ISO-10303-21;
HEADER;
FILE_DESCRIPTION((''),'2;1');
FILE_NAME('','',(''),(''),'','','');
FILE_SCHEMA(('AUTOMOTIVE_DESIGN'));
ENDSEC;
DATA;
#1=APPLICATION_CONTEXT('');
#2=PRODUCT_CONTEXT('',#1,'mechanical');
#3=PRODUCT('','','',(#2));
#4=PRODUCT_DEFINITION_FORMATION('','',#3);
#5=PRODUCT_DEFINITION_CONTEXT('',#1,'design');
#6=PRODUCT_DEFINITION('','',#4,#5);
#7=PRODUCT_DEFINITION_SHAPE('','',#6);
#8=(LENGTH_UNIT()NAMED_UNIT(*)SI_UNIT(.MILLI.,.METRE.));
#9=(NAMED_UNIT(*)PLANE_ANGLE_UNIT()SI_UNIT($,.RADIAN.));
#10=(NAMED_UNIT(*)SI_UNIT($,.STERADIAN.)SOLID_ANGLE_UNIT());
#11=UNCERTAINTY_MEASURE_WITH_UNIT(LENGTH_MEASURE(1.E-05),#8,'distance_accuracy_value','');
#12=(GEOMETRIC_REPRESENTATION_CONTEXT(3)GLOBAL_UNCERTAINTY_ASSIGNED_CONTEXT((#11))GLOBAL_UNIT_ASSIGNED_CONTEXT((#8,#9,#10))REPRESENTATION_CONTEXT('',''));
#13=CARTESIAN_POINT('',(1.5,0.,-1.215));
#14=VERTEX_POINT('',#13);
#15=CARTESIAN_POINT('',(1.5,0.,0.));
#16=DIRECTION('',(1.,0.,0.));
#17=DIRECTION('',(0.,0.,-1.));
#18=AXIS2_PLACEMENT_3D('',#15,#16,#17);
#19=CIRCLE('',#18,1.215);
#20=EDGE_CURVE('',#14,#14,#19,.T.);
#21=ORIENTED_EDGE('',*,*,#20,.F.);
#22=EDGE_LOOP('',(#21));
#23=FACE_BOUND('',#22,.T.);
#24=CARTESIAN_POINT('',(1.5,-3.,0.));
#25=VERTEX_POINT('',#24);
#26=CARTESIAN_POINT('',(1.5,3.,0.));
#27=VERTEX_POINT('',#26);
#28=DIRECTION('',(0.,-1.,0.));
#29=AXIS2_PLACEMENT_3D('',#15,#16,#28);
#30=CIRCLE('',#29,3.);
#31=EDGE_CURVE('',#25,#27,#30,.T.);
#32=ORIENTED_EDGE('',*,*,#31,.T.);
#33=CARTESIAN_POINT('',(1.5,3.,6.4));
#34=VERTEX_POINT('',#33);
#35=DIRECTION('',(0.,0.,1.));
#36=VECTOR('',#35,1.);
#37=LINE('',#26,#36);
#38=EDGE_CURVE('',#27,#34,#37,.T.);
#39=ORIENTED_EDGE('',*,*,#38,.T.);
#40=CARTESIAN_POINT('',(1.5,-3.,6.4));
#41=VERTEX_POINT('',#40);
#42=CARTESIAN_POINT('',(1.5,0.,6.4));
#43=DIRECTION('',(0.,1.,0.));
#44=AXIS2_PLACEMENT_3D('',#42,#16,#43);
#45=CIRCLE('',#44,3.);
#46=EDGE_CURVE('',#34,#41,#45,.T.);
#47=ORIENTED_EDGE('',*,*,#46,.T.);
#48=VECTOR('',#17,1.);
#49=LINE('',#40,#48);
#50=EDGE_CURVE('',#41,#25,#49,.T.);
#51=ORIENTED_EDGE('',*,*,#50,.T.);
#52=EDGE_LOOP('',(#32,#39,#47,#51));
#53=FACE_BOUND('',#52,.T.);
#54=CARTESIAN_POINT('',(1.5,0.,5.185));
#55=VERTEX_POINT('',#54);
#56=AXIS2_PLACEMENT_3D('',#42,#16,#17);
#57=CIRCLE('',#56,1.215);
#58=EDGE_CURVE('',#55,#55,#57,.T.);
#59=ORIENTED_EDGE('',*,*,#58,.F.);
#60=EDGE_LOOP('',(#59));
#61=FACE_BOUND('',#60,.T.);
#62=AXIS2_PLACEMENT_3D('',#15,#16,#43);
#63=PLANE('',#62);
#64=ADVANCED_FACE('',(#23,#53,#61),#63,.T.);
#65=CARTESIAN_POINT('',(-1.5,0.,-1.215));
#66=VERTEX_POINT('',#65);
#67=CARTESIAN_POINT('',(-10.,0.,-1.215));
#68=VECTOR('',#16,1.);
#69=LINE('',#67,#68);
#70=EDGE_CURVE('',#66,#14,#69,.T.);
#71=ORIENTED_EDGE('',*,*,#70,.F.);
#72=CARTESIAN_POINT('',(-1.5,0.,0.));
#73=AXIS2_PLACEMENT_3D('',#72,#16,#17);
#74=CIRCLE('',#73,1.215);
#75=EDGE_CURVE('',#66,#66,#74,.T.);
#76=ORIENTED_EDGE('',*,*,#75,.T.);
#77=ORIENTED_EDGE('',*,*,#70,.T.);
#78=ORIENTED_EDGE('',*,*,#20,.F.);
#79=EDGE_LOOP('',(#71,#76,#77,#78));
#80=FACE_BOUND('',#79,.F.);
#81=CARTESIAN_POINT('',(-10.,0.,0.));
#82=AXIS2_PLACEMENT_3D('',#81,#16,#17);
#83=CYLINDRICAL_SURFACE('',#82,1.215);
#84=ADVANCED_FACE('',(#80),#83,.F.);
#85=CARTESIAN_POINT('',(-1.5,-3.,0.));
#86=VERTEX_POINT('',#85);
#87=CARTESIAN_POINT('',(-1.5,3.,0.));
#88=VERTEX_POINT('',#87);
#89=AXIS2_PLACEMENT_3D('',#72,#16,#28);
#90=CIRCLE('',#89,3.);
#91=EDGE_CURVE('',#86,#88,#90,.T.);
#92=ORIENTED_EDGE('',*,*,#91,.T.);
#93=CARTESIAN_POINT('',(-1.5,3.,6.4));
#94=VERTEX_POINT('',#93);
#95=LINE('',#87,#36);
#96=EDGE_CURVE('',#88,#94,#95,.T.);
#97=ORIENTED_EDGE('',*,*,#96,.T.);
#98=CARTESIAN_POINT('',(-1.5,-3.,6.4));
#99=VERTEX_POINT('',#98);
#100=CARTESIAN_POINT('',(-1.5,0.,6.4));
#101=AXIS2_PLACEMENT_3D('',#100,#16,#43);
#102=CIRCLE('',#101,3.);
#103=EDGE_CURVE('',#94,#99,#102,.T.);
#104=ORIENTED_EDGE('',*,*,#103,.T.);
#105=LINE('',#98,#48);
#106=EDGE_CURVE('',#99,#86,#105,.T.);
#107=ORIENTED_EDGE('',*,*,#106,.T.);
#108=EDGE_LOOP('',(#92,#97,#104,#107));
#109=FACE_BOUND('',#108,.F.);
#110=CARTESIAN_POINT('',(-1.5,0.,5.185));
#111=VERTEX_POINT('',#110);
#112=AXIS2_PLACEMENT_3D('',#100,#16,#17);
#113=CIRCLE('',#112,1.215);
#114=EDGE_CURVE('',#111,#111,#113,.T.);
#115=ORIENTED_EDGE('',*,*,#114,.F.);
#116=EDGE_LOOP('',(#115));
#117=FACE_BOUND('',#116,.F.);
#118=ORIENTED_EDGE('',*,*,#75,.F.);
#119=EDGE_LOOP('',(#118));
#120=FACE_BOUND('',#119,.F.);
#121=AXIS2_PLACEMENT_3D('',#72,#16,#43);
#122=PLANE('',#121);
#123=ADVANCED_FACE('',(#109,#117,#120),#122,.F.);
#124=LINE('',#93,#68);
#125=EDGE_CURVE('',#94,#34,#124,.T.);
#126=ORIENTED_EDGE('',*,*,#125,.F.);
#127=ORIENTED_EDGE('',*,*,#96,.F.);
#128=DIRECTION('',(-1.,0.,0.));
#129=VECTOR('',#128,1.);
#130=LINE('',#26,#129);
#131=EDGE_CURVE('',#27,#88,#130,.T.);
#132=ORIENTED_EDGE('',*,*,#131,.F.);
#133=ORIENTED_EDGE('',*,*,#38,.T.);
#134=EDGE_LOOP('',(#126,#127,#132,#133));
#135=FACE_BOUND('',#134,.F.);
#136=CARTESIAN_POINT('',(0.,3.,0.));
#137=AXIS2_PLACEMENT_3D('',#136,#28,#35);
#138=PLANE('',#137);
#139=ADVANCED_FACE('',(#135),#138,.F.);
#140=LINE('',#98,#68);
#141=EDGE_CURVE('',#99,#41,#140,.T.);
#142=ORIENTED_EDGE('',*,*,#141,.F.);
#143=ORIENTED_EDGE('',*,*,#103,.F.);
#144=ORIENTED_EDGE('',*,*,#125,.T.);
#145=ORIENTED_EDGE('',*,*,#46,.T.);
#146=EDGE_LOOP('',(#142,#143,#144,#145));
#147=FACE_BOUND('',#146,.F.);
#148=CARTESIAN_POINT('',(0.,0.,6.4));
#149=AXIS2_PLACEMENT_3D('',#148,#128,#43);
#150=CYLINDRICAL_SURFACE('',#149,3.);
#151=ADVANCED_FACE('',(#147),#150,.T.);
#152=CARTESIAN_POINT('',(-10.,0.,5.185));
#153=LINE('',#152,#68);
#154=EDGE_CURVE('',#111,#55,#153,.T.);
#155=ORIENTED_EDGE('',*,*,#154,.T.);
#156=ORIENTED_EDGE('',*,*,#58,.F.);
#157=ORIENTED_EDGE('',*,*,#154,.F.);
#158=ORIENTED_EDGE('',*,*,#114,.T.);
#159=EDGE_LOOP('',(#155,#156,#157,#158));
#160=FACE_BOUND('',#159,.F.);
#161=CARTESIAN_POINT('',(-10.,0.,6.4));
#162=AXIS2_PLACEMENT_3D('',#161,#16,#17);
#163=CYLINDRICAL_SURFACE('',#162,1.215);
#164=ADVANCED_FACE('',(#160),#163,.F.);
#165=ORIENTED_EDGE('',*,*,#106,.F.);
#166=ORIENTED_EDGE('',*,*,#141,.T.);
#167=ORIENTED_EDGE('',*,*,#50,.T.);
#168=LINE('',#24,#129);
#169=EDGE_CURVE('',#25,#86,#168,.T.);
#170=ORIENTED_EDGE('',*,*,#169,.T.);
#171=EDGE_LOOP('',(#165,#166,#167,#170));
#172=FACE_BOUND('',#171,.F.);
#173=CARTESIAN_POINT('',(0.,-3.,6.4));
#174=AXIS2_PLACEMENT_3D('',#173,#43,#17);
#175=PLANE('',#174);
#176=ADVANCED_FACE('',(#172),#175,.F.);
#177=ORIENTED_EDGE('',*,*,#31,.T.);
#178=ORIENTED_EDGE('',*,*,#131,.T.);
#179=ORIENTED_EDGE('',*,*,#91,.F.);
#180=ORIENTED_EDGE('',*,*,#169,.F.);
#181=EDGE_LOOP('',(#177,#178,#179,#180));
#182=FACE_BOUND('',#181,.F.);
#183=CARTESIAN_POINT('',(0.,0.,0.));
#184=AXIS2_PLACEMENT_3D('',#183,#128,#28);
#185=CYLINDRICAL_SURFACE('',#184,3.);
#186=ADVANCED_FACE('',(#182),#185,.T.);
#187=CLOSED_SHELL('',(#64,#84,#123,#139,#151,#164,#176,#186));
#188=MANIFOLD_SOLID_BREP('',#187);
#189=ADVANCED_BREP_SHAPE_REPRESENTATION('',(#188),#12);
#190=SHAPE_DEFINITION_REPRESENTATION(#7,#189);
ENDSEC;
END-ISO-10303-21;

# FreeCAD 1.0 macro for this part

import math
import FreeCAD as App
import Part
import Sketcher
Q = App.Units.Quantity


def add_polygon(sketch, points):
    """Adds a closed chain of lines whose ends are joined by coincident constraints."""
    first, n = sketch.GeometryCount, len(points)
    for a, b in zip(points, points[1:] + points[:1]):
        sketch.addGeometry(Part.LineSegment(App.Vector(*a, 0), App.Vector(*b, 0)), False)
    for i in range(n):
        sketch.addConstraint(Sketcher.Constraint("Coincident", first + i, 2, first + (i + 1) % n, 1))

doc = App.newDocument("Part")
body = doc.addObject("PartDesign::Body", "Body")

# Sketch on YZ plane
sketch1 = body.newObject("Sketcher::SketchObject", "Sketch")
sketch1.AttachmentSupport = (doc.getObject("YZ_Plane"), [""])
sketch1.MapMode = "FlatFace"
sketch1.addGeometry([
    Part.LineSegment(App.Vector(3, 0, 0), App.Vector(3, 6.4, 0)),
    Part.ArcOfCircle(Part.Circle(App.Vector(0, 6.4, 0), App.Vector(0, 0, 1), 3), math.radians(0), math.radians(180)),
    Part.LineSegment(App.Vector(-3, 6.4, 0), App.Vector(-3, 0, 0)),
    Part.ArcOfCircle(Part.Circle(App.Vector(0, 0, 0), App.Vector(0, 0, 1), 3), math.radians(180), math.radians(360)),
], False)
sketch1.addConstraint([
    Sketcher.Constraint("Tangent", 0, 2, 1, 1),
    Sketcher.Constraint("Tangent", 1, 2, 2, 1),
    Sketcher.Constraint("Tangent", 2, 2, 3, 1),
    Sketcher.Constraint("Tangent", 3, 2, 0, 1),
    Sketcher.Constraint("Vertical", 0),
    Sketcher.Constraint("Vertical", 2),
    Sketcher.Constraint("Coincident", 3, 3, -1, 1),
    Sketcher.Constraint("Radius", 1, Q("3 mm")),
    Sketcher.Constraint("DistanceY", 0, 1, 0, 2, Q("6.4 mm")),
])
pad1 = body.newObject("PartDesign::Pad", "Pad")
pad1.Profile = sketch1
pad1.Length = 3
pad1.Midplane = True

# Sketch on XZ plane
sketch2 = body.newObject("Sketcher::SketchObject", "Sketch001")
sketch2.AttachmentSupport = (doc.getObject("XZ_Plane"), [""])
sketch2.MapMode = "FlatFace"
add_polygon(sketch2, [(-10, 0), (10, 0), (10, -1.215), (-10, -1.215)])  # lines 0-3
sketch2.addConstraint([
    Sketcher.Constraint("Horizontal", 0),
    Sketcher.Constraint("Vertical", 1),
    Sketcher.Constraint("Horizontal", 2),
    Sketcher.Constraint("Vertical", 3),
    Sketcher.Constraint("Symmetric", 0, 2, 3, 2, -1, 1),
    Sketcher.Constraint("DistanceX", 0, 1, 0, 2, Q("20 mm")),
    Sketcher.Constraint("DistanceY", 1, 2, 1, 1, Q("1.215 mm")),
])
groove = body.newObject("PartDesign::Groove", "Groove")
groove.Profile = sketch2
groove.ReferenceAxis = (sketch2, ["H_Axis"])
groove.Angle = 360

# Sketch on XZ plane
sketch3 = body.newObject("Sketcher::SketchObject", "Sketch002")
sketch3.AttachmentSupport = (doc.getObject("XZ_Plane"), [""])
sketch3.MapMode = "FlatFace"
add_polygon(sketch3, [(-10, 6.4), (10, 6.4), (10, 5.185), (-10, 5.185)])  # lines 0-3
sketch3.addGeometry(Part.LineSegment(App.Vector(-10, 6.4, 0), App.Vector(10, 6.4, 0)), True)  # axis
sketch3.addConstraint([
    Sketcher.Constraint("Horizontal", 0),
    Sketcher.Constraint("Vertical", 1),
    Sketcher.Constraint("Horizontal", 2),
    Sketcher.Constraint("Vertical", 3),
    Sketcher.Constraint("Horizontal", 4),
    Sketcher.Constraint("Coincident", 4, 1, 3, 2),
    Sketcher.Constraint("Vertical", 1, 2, 4, 2),
    Sketcher.Constraint("DistanceX", 0, 1, 0, 2, Q("20 mm")),
    Sketcher.Constraint("DistanceX", -1, 1, 0, 2, Q("10 mm")),
    Sketcher.Constraint("DistanceY", -1, 1, 0, 2, Q("6.4 mm")),
    Sketcher.Constraint("DistanceY", 1, 2, 1, 1, Q("1.215 mm")),
])
groove2 = body.newObject("PartDesign::Groove", "Groove001")
groove2.Profile = sketch3
groove2.ReferenceAxis = (sketch3, ["Axis0"])
groove2.Angle = 360

doc.recompute()
